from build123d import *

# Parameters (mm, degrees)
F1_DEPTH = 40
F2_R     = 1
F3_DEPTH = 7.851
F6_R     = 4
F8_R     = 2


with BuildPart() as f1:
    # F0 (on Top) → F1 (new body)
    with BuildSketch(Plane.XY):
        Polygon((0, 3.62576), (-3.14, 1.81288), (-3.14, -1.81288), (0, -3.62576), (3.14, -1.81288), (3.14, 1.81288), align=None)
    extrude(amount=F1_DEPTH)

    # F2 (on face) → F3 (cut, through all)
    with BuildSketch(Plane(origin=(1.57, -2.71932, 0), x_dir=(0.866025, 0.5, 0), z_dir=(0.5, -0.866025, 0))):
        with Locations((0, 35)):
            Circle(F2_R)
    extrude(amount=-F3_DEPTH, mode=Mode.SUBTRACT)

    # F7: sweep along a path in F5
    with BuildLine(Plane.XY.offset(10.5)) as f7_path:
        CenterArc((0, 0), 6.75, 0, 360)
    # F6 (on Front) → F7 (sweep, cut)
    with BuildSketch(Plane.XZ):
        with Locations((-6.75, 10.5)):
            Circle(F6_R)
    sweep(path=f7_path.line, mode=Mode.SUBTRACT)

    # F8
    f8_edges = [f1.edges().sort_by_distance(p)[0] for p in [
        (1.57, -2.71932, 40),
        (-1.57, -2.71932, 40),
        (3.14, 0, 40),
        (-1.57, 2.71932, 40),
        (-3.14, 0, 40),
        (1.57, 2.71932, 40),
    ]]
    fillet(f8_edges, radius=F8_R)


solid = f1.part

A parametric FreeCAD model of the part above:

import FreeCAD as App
import Part
import Sketcher

V = App.Vector
Q = App.Units.Quantity


def edges_at(feature, points):
    """Names of the edges that pass closest to the given points."""
    edges = feature.Shape.Edges
    near = lambda p: min(range(len(edges)), key=lambda i: edges[i].distToShape(Part.Vertex(*p))[0])
    return sorted({f"Edge{near(p) + 1}" for p in points})


def add_polygon(sketch, points):
    """Adds a closed chain of lines whose ends are joined by coincident constraints."""
    first, n = sketch.GeometryCount, len(points)
    for a, b in zip(points, points[1:] + points[:1]):
        sketch.addGeometry(Part.LineSegment(App.Vector(*a, 0), App.Vector(*b, 0)), False)
    for i in range(n):
        sketch.addConstraint(Sketcher.Constraint("Coincident", first + i, 2, first + (i + 1) % n, 1))

doc = App.newDocument("Part")
body = doc.addObject("PartDesign::Body", "Body")

# Sketch on XY plane
sketch1 = body.newObject("Sketcher::SketchObject", "Sketch")
sketch1.AttachmentSupport = (doc.getObject("XY_Plane"), [""])
sketch1.MapMode = "FlatFace"
add_polygon(sketch1, [(0, 3.6), (-3.1, 1.8), (-3.1, -1.8), (0, -3.6), (3.1, -1.8), (3.1, 1.8)])  # lines 0-5
sketch1.addConstraint(Sketcher.Constraint("Vertical", 1))
sketch1.addConstraint(Sketcher.Constraint("Vertical", 4))
sketch1.addConstraint(Sketcher.Constraint("Symmetric", 0, 2, 3, 2, -1, 1))
sketch1.addConstraint(Sketcher.Constraint("Symmetric", 2, 2, 5, 2, -1, 1))
sketch1.addConstraint(Sketcher.Constraint("PointOnObject", 2, 2, -2))
sketch1.addConstraint(Sketcher.Constraint("Parallel", 2, 5))
sketch1.addConstraint(Sketcher.Constraint("Horizontal", 1, 2, 3, 2))
sketch1.addConstraint(Sketcher.Constraint("Angle", 0, Q("-149.999998 deg")))
sketch1.addConstraint(Sketcher.Constraint("DistanceX", 0, 2, -1, 1, Q("3.14 mm")))
sketch1.addConstraint(Sketcher.Constraint("DistanceY", 1, 2, 1, 1, Q("3.62576 mm")))
pad1 = body.newObject("PartDesign::Pad", "Pad")
pad1.Profile = sketch1
pad1.Length = 40

# Sketch on an angled plane
sketch2 = body.newObject("Sketcher::SketchObject", "Sketch001")
sketch2.Placement = App.Placement(V(1.57, -2.71932, 0), App.Rotation(V(0.866025303, 0.500000175, 0), V(0, 0, 1), V(0.500000175, -0.866025303, 0), "ZXY"))
sketch2.addGeometry(Part.Circle(V(0, 35, 0), V(0, 0, 1), 1), False)
sketch2.addConstraint(Sketcher.Constraint("PointOnObject", 0, 3, -2))
sketch2.addConstraint(Sketcher.Constraint("Diameter", 0, Q("2 mm")))
sketch2.addConstraint(Sketcher.Constraint("DistanceY", -1, 1, 0, 3, Q("35 mm")))
pocket1 = body.newObject("PartDesign::Pocket", "Pocket")
pocket1.Profile = sketch2
pocket1.Type = "ThroughAll"

# Sketch on XZ plane
sketch3 = body.newObject("Sketcher::SketchObject", "Sketch002")
sketch3.AttachmentSupport = (doc.getObject("XZ_Plane"), [""])
sketch3.MapMode = "FlatFace"
sketch3.addGeometry(Part.Circle(V(-6.8, 10.5, 0), V(0, 0, 1), 4), False)
sketch3.addConstraint(Sketcher.Constraint("Diameter", 0, Q("8 mm")))
sketch3.addConstraint(Sketcher.Constraint("DistanceY", -1, 1, 0, 3, Q("10.5 mm")))
sketch3.addConstraint(Sketcher.Constraint("DistanceX", 0, 3, -1, 1, Q("6.75 mm")))

# Sketch on XY plane
sketch4 = body.newObject("Sketcher::SketchObject", "Sketch003")
sketch4.AttachmentSupport = (doc.getObject("XY_Plane"), [""])
sketch4.MapMode = "FlatFace"
sketch4.AttachmentOffset = App.Placement(V(0, 0, 10.5), App.Rotation())
sketch4.addGeometry(Part.Circle(V(0, 0, 0), V(0, 0, 1), 7), False)
sketch4.addConstraint(Sketcher.Constraint("Coincident", 0, 3, -1, 1))
sketch4.addConstraint(Sketcher.Constraint("Diameter", 0, Q("13.5 mm")))
doc.recompute()

subtractivepipe = body.newObject("PartDesign::SubtractivePipe", "SubtractivePipe")
subtractivepipe.Profile = sketch3
subtractivepipe.Spine = (sketch4, ["Edge1"])
doc.recompute()

fillet = body.newObject("PartDesign::Fillet", "Fillet")
fillet.Base = (subtractivepipe, edges_at(subtractivepipe, [
    (1.57, -2.719, 40),
    (-1.57, -2.719, 40),
    (3.14, 0, 40),
    (-1.57, 2.719, 40),
    (-3.14, 0, 40),
    (1.57, 2.719, 40),
]))
fillet.Radius = 2

doc.recompute()
